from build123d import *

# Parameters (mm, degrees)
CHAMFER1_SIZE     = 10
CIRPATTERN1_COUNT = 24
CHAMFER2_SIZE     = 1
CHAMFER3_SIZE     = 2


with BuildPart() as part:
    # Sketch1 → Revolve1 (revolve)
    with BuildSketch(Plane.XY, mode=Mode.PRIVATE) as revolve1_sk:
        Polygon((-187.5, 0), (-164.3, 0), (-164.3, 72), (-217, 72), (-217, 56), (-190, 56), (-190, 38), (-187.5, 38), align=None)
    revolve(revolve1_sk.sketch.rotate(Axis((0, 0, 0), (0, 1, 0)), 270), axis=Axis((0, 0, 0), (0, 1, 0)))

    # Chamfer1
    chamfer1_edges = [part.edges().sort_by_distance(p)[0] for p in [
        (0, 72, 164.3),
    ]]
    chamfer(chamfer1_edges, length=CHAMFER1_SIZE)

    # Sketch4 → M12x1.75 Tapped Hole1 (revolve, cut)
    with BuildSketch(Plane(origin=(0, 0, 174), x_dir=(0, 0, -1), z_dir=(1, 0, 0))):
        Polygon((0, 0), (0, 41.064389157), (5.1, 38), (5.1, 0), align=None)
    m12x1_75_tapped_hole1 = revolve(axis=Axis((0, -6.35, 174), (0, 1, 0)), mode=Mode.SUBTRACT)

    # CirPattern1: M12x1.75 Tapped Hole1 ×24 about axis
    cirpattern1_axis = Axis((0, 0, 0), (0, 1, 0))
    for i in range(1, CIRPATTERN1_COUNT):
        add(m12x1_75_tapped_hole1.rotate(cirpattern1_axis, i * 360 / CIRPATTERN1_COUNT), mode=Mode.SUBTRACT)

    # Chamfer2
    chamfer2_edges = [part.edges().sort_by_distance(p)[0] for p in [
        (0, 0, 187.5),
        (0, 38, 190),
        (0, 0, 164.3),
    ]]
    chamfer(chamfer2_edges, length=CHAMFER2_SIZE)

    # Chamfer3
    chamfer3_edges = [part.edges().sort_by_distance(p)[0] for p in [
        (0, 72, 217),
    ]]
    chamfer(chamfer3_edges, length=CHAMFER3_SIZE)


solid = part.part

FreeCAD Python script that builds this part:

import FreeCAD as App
import Part
import Sketcher

V = App.Vector
Q = App.Units.Quantity


def edges_at(feature, points):
    """Names of the edges that pass closest to the given points."""
    edges = feature.Shape.Edges
    near = lambda p: min(range(len(edges)), key=lambda i: edges[i].distToShape(Part.Vertex(*p))[0])
    return sorted({f"Edge{near(p) + 1}" for p in points})

doc = App.newDocument("Part")
body = doc.addObject("PartDesign::Body", "Body")

# Sketch on XY plane
sketch1 = body.newObject("Sketcher::SketchObject", "Sketch")
sketch1.AttachmentSupport = (doc.getObject("XY_Plane"), [""])
sketch1.MapMode = "FlatFace"
sketch1.addGeometry([
    Part.LineSegment(V(-187.5, 0, 0), V(-164.3, 0, 0)),  # 0
    Part.LineSegment(V(-164.3, 0, 0), V(-164.3, 72, 0)),  # 1
    Part.LineSegment(V(-164.3, 72, 0), V(-217, 72, 0)),  # 2
    Part.LineSegment(V(-217, 72, 0), V(-217, 56, 0)),  # 3
    Part.LineSegment(V(-217, 56, 0), V(-190, 56, 0)),  # 4
    Part.LineSegment(V(-190, 56, 0), V(-190, 38, 0)),  # 5
    Part.LineSegment(V(-190, 38, 0), V(-187.5, 38, 0)),  # 6
    Part.LineSegment(V(-187.5, 38, 0), V(-187.5, 0, 0)),  # 7
], False)
sketch1.addConstraint([
    Sketcher.Constraint("Coincident", 0, 2, 1, 1),
    Sketcher.Constraint("Coincident", 1, 2, 2, 1),
    Sketcher.Constraint("Coincident", 2, 2, 3, 1),
    Sketcher.Constraint("Coincident", 3, 2, 4, 1),
    Sketcher.Constraint("Coincident", 4, 2, 5, 1),
    Sketcher.Constraint("Coincident", 5, 2, 6, 1),
    Sketcher.Constraint("Coincident", 6, 2, 7, 1),
    Sketcher.Constraint("Coincident", 7, 2, 0, 1),
    Sketcher.Constraint("Horizontal", 0),
    Sketcher.Constraint("Vertical", 1),
    Sketcher.Constraint("Horizontal", 2),
    Sketcher.Constraint("Vertical", 3),
    Sketcher.Constraint("Horizontal", 4),
    Sketcher.Constraint("Vertical", 5),
    Sketcher.Constraint("Horizontal", 6),
    Sketcher.Constraint("Vertical", 7),
    Sketcher.Constraint("PointOnObject", 0, 2, -1),
    Sketcher.Constraint("DistanceX", 4, 1, 4, 2, 27.0),
    Sketcher.Constraint("DistanceY", 1, 1, 1, 2, 72.0),
    Sketcher.Constraint("DistanceY", 3, 2, 3, 1, 16.0),
    Sketcher.Constraint("DistanceY", 5, 2, 5, 1, 18.0),
    Sketcher.Constraint("DistanceX", 0, 1, 0, 2, 23.2),
    Sketcher.Constraint("DistanceX", 2, 2, 2, 1, 52.7),
    Sketcher.Constraint("DistanceX", 2, 2, -1, 1, 217.0),
])
revolution = body.newObject("PartDesign::Revolution", "Revolution")
revolution.Profile = sketch1
revolution.ReferenceAxis = (sketch1, ["V_Axis"])
revolution.Angle = 360
doc.recompute()

chamfer = body.newObject("PartDesign::Chamfer", "Chamfer")
chamfer.Base = (revolution, edges_at(revolution, [(0, 72, 164.3)]))
chamfer.Size = 10

# Sketch on YZ plane
sketch2 = body.newObject("Sketcher::SketchObject", "Sketch001")
sketch2.AttachmentSupport = (doc.getObject("YZ_Plane"), [""])
sketch2.MapMode = "FlatFace"
sketch2.addGeometry([
    Part.LineSegment(V(41.064389, 174, 0), V(0, 174, 0)),
    Part.LineSegment(V(0, 174, 0), V(0, 168.9, 0)),
    Part.LineSegment(V(0, 168.9, 0), V(38, 168.9, 0)),
    Part.LineSegment(V(38, 168.9, 0), V(41.064389, 174, 0)),
], False)
sketch2.addGeometry(Part.LineSegment(V(0, 174, 0), V(41.064389, 174, 0)), True)  # axis
sketch2.addConstraint([
    Sketcher.Constraint("Coincident", 0, 2, 1, 1),
    Sketcher.Constraint("Coincident", 1, 2, 2, 1),
    Sketcher.Constraint("Coincident", 2, 2, 3, 1),
    Sketcher.Constraint("Coincident", 3, 2, 0, 1),
    Sketcher.Constraint("Horizontal", 0),
    Sketcher.Constraint("Vertical", 1),
    Sketcher.Constraint("Horizontal", 2),
    Sketcher.Constraint("Horizontal", 4),
    Sketcher.Constraint("Coincident", 4, 1, 0, 2),
    Sketcher.Constraint("PointOnObject", 0, 2, -2),
    Sketcher.Constraint("Equal", 0, 4),
    Sketcher.Constraint("DistanceX", 2, 1, 2, 2, 38.0),
    Sketcher.Constraint("Angle", 3, Q("59 deg")),
    Sketcher.Constraint("DistanceY", 1, 2, 1, 1, 5.1),
    Sketcher.Constraint("DistanceY", -1, 1, 0, 2, 174.0),
])
groove = body.newObject("PartDesign::Groove", "Groove")
groove.Profile = sketch2
groove.ReferenceAxis = (sketch2, ["Axis0"])
groove.Angle = 360
doc.recompute()

polarpattern = body.newObject("PartDesign::PolarPattern", "PolarPattern")
polarpattern.Originals = [groove]
polarpattern.Axis = (doc.getObject("Y_Axis"), [""])
polarpattern.Angle = 360
polarpattern.Occurrences = 24
body.Tip = polarpattern
doc.recompute()

chamfer2 = body.newObject("PartDesign::Chamfer", "Chamfer001")
chamfer2.Base = (polarpattern, edges_at(polarpattern, [(0, 0, 187.5), (0, 38, 190), (0, 0, 164.3)]))
chamfer2.Size = 1
doc.recompute()

chamfer3 = body.newObject("PartDesign::Chamfer", "Chamfer002")
chamfer3.Base = (chamfer2, edges_at(chamfer2, [(0, 72, 217)]))
chamfer3.Size = 2

doc.recompute()
